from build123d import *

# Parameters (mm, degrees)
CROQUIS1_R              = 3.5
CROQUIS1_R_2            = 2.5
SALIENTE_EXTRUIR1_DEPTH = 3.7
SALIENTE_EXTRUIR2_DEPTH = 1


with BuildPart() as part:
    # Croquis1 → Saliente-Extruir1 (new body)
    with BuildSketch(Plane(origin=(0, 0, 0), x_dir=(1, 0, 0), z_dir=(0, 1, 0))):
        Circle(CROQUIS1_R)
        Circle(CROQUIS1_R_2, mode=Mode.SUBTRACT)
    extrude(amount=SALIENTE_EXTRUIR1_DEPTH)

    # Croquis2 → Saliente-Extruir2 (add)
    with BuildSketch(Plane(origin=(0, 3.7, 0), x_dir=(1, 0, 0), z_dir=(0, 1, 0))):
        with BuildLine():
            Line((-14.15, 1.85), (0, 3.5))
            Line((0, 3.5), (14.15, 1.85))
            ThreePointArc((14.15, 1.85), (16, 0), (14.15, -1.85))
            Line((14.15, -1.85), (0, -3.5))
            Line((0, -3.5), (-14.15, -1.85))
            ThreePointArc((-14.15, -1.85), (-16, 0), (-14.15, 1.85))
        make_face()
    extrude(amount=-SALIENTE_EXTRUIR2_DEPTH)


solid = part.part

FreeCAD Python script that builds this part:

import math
import FreeCAD as App
import Part
import Sketcher

V = App.Vector
Q = App.Units.Quantity

doc = App.newDocument("Part")
params = doc.addObject("Spreadsheet::Sheet", "Params")
for row, (alias, value) in enumerate([
    ("sketch1_diameter", "7 mm"),
    ("sketch1_diameter2", "5 mm"),
    ("pad1_length", "3.7 mm"),
    ("sketch2_radius", "1.85 mm"),
    ("pad2_length", "1 mm"),
], start=1):
    params.set(f"A{row}", alias)
    params.set(f"B{row}", "=" + value)
    params.setAlias(f"B{row}", alias)

body = doc.addObject("PartDesign::Body", "Body")

sketch1 = doc.addObject("Sketcher::SketchObject", "Sketch")
body.addObject(sketch1)
sketch1.AttachmentSupport = (doc.XZ_Plane, [""])
sketch1.MapMode = "FlatFace"
sketch1.addGeometry([
    Part.Circle(V(0, 0, 0), V(0, 0, 1), 3.5),
    Part.Circle(V(0, 0, 0), V(0, 0, 1), 2.5),
], False)
sketch1.addConstraint([
    Sketcher.Constraint("Coincident", 0, 3, -1, 1),
    Sketcher.Constraint("Coincident", 1, 3, -1, 1),
    Sketcher.Constraint("Diameter", 0, Q("7 mm")),
    Sketcher.Constraint("Diameter", 1, Q("5 mm")),
])
sketch1.setExpression("Constraints[2]", "Params.sketch1_diameter")
sketch1.setExpression("Constraints[3]", "Params.sketch1_diameter2")
pad1 = doc.addObject("PartDesign::Pad", "Pad")
body.addObject(pad1)
pad1.Profile = sketch1
pad1.setExpression("Length", "Params.pad1_length")
pad1.Reversed = True

sketch2 = doc.addObject("Sketcher::SketchObject", "Sketch001")
body.addObject(sketch2)
sketch2.AttachmentSupport = (doc.XZ_Plane, [""])
sketch2.MapMode = "FlatFace"
sketch2.AttachmentOffset = App.Placement(V(0, 0, -3.7), App.Rotation())
sketch2.addGeometry([
    Part.LineSegment(V(0, -3.5, 0), V(-14.2, -1.9, 0)),
    Part.ArcOfCircle(Part.Circle(V(-14.2, 0, 0), V(0, 0, 1), 1.9), math.radians(90), math.radians(270)),
    Part.LineSegment(V(-14.2, 1.9, 0), V(0, 3.5, 0)),
    Part.LineSegment(V(0, 3.5, 0), V(14.2, 1.9, 0)),
    Part.ArcOfCircle(Part.Circle(V(14.2, 0, 0), V(0, 0, 1), 1.9), math.radians(-90), math.radians(90)),
    Part.LineSegment(V(14.2, -1.9, 0), V(0, -3.5, 0)),
], False)
sketch2.addConstraint([
    Sketcher.Constraint("Coincident", 0, 2, 1, 2),
    Sketcher.Constraint("Coincident", 1, 1, 2, 1),
    Sketcher.Constraint("Coincident", 2, 2, 3, 1),
    Sketcher.Constraint("Coincident", 3, 2, 4, 2),
    Sketcher.Constraint("Coincident", 4, 1, 5, 1),
    Sketcher.Constraint("Coincident", 5, 2, 0, 1),
    Sketcher.Constraint("Equal", 1, 4),
    Sketcher.Constraint("Symmetric", 1, 3, 4, 3, -1, 1),
    Sketcher.Constraint("Symmetric", 2, 2, 5, 2, -1, 1),
    Sketcher.Constraint("Symmetric", 1, 1, 3, 2, -2),
    Sketcher.Constraint("PointOnObject", 2, 2, -2),
    Sketcher.Constraint("Parallel", 0, 3),
    Sketcher.Constraint("Parallel", 2, 5),
    Sketcher.Constraint("Vertical", 1, 3, 0, 2),
    Sketcher.Constraint("Radius", 1, Q("1.85 mm")),
    Sketcher.Constraint("DistanceY", 5, 2, 2, 2, Q("7 mm")),
    Sketcher.Constraint("DistanceX", 1, 3, 4, 3, Q("28.3 mm")),
])
sketch2.setExpression("Constraints[14]", "Params.sketch2_radius")
pad2 = doc.addObject("PartDesign::Pad", "Pad001")
body.addObject(pad2)
pad2.Profile = sketch2
pad2.setExpression("Length", "Params.pad2_length")

doc.recompute()
